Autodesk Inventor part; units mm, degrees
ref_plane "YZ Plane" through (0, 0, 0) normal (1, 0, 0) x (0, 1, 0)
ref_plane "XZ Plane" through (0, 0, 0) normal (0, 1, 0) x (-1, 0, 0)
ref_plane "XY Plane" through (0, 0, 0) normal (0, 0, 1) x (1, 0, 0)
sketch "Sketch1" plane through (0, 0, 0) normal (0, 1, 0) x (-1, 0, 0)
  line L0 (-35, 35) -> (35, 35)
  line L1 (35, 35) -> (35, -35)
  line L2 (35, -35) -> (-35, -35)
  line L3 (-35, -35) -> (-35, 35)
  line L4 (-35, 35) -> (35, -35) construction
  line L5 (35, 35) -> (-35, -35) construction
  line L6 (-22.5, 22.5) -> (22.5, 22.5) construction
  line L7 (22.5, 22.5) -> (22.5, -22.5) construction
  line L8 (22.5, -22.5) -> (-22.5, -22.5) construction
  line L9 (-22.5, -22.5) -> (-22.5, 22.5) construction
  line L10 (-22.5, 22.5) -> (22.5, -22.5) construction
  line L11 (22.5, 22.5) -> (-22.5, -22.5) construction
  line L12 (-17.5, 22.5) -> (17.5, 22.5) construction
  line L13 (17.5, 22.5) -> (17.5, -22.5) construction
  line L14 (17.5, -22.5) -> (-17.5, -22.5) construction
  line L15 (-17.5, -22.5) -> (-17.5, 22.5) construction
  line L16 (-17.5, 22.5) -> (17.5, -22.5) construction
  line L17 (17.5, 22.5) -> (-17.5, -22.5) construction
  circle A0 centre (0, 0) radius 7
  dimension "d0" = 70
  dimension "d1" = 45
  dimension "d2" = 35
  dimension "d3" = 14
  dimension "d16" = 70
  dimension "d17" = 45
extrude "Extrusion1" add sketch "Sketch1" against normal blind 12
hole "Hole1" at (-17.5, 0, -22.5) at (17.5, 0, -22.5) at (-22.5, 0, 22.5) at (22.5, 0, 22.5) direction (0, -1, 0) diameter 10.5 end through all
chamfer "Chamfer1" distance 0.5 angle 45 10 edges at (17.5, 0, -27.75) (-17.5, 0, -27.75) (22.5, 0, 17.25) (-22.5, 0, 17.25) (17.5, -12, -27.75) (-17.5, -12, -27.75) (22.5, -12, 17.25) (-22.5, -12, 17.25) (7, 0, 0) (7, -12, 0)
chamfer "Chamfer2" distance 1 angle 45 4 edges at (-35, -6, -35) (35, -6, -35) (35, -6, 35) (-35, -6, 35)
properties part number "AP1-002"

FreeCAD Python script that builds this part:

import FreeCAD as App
import Part
import Sketcher
from FreeCAD import Vector


def edges_at(feature, points):
    """Names of the edges that pass closest to the given points."""
    edges = feature.Shape.Edges
    near = lambda p: min(range(len(edges)), key=lambda i: edges[i].distToShape(Part.Vertex(*p))[0])
    return sorted({f"Edge{near(p) + 1}" for p in points})

doc = App.newDocument("Part")
body = doc.addObject("PartDesign::Body", "Body")

# Sketch on XZ plane
sketch1 = body.newObject("Sketcher::SketchObject", "Sketch")
sketch1.AttachmentSupport = (doc.getObject("XZ_Plane"), [""])
sketch1.MapMode = "FlatFace"
sketch1.addGeometry([
    Part.LineSegment(Vector(-35, 35, 0), Vector(35, 35, 0)),  # 0
    Part.LineSegment(Vector(35, 35, 0), Vector(35, -35, 0)),  # 1
    Part.LineSegment(Vector(35, -35, 0), Vector(-35, -35, 0)),  # 2
    Part.LineSegment(Vector(-35, -35, 0), Vector(-35, 35, 0)),  # 3
    Part.Circle(Vector(0, 0, 0), Vector(0, 0, 1), 7),  # 4
], False)
sketch1.addConstraint([
    Sketcher.Constraint("Coincident", 0, 2, 1, 1),
    Sketcher.Constraint("Coincident", 1, 2, 2, 1),
    Sketcher.Constraint("Coincident", 2, 2, 3, 1),
    Sketcher.Constraint("Coincident", 3, 2, 0, 1),
    Sketcher.Constraint("Horizontal", 0),
    Sketcher.Constraint("Vertical", 1),
    Sketcher.Constraint("Horizontal", 2),
    Sketcher.Constraint("Vertical", 3),
    Sketcher.Constraint("Coincident", 4, 3, -1, 1),
    Sketcher.Constraint("Symmetric", 0, 2, 2, 2, -1, 1),
    Sketcher.Constraint("Equal", 2, 1),
    Sketcher.Constraint("Diameter", 4, 14.0),
    Sketcher.Constraint("DistanceX", 0, 1, 0, 2, 70.0),
])
pad1 = body.newObject("PartDesign::Pad", "Pad")
pad1.Profile = sketch1
pad1.Length = 12

# Sketch on XZ plane
sketch2 = body.newObject("Sketcher::SketchObject", "Sketch001")
sketch2.AttachmentSupport = (doc.getObject("XZ_Plane"), [""])
sketch2.MapMode = "FlatFace"
sketch2.addGeometry([
    Part.Circle(Vector(-18, -22, 0), Vector(0, 0, 1), 5),
    Part.Circle(Vector(18, -22, 0), Vector(0, 0, 1), 5),
    Part.Circle(Vector(-22, 22, 0), Vector(0, 0, 1), 5),
    Part.Circle(Vector(22, 22, 0), Vector(0, 0, 1), 5),
], False)
sketch2.addConstraint([
    Sketcher.Constraint("Equal", 0, 1),
    Sketcher.Constraint("Equal", 1, 2),
    Sketcher.Constraint("Equal", 2, 3),
    Sketcher.Constraint("Symmetric", 0, 3, 1, 3, -2),
    Sketcher.Constraint("Symmetric", 2, 3, 3, 3, -2),
    Sketcher.Constraint("Diameter", 0, 10.5),
    Sketcher.Constraint("DistanceX", 0, 3, 1, 3, 35.0),
    Sketcher.Constraint("DistanceX", 2, 3, 0, 3, 5.0),
    Sketcher.Constraint("DistanceY", 0, 3, 2, 3, 45.0),
    Sketcher.Constraint("DistanceY", 0, 3, -1, 1, 22.5),
])
doc.recompute()
hole = body.newObject("PartDesign::Hole", "Hole")
hole.Profile = sketch2
hole.ThreadType = "None"
hole.Diameter = 10.5
hole.DepthType = "ThroughAll"
hole.Reversed = True
doc.recompute()

chamfer = body.newObject("PartDesign::Chamfer", "Chamfer")
chamfer.Base = (hole, edges_at(hole, [
    (17.5, 0, -27.75),
    (-17.5, 0, -27.75),
    (22.5, 0, 17.25),
    (-22.5, 0, 17.25),
    (17.5, -12, -27.75),
    (-17.5, -12, -27.75),
    (22.5, -12, 17.25),
    (-22.5, -12, 17.25),
    (7, 0, 0),
    (7, -12, 0),
]))
chamfer.Size = 0.5
doc.recompute()

chamfer2 = body.newObject("PartDesign::Chamfer", "Chamfer001")
chamfer2.Base = (chamfer, edges_at(chamfer, [
    (-35, -6, -35),
    (35, -6, -35),
    (35, -6, 35),
    (-35, -6, 35),
]))
chamfer2.Size = 1

doc.recompute()
